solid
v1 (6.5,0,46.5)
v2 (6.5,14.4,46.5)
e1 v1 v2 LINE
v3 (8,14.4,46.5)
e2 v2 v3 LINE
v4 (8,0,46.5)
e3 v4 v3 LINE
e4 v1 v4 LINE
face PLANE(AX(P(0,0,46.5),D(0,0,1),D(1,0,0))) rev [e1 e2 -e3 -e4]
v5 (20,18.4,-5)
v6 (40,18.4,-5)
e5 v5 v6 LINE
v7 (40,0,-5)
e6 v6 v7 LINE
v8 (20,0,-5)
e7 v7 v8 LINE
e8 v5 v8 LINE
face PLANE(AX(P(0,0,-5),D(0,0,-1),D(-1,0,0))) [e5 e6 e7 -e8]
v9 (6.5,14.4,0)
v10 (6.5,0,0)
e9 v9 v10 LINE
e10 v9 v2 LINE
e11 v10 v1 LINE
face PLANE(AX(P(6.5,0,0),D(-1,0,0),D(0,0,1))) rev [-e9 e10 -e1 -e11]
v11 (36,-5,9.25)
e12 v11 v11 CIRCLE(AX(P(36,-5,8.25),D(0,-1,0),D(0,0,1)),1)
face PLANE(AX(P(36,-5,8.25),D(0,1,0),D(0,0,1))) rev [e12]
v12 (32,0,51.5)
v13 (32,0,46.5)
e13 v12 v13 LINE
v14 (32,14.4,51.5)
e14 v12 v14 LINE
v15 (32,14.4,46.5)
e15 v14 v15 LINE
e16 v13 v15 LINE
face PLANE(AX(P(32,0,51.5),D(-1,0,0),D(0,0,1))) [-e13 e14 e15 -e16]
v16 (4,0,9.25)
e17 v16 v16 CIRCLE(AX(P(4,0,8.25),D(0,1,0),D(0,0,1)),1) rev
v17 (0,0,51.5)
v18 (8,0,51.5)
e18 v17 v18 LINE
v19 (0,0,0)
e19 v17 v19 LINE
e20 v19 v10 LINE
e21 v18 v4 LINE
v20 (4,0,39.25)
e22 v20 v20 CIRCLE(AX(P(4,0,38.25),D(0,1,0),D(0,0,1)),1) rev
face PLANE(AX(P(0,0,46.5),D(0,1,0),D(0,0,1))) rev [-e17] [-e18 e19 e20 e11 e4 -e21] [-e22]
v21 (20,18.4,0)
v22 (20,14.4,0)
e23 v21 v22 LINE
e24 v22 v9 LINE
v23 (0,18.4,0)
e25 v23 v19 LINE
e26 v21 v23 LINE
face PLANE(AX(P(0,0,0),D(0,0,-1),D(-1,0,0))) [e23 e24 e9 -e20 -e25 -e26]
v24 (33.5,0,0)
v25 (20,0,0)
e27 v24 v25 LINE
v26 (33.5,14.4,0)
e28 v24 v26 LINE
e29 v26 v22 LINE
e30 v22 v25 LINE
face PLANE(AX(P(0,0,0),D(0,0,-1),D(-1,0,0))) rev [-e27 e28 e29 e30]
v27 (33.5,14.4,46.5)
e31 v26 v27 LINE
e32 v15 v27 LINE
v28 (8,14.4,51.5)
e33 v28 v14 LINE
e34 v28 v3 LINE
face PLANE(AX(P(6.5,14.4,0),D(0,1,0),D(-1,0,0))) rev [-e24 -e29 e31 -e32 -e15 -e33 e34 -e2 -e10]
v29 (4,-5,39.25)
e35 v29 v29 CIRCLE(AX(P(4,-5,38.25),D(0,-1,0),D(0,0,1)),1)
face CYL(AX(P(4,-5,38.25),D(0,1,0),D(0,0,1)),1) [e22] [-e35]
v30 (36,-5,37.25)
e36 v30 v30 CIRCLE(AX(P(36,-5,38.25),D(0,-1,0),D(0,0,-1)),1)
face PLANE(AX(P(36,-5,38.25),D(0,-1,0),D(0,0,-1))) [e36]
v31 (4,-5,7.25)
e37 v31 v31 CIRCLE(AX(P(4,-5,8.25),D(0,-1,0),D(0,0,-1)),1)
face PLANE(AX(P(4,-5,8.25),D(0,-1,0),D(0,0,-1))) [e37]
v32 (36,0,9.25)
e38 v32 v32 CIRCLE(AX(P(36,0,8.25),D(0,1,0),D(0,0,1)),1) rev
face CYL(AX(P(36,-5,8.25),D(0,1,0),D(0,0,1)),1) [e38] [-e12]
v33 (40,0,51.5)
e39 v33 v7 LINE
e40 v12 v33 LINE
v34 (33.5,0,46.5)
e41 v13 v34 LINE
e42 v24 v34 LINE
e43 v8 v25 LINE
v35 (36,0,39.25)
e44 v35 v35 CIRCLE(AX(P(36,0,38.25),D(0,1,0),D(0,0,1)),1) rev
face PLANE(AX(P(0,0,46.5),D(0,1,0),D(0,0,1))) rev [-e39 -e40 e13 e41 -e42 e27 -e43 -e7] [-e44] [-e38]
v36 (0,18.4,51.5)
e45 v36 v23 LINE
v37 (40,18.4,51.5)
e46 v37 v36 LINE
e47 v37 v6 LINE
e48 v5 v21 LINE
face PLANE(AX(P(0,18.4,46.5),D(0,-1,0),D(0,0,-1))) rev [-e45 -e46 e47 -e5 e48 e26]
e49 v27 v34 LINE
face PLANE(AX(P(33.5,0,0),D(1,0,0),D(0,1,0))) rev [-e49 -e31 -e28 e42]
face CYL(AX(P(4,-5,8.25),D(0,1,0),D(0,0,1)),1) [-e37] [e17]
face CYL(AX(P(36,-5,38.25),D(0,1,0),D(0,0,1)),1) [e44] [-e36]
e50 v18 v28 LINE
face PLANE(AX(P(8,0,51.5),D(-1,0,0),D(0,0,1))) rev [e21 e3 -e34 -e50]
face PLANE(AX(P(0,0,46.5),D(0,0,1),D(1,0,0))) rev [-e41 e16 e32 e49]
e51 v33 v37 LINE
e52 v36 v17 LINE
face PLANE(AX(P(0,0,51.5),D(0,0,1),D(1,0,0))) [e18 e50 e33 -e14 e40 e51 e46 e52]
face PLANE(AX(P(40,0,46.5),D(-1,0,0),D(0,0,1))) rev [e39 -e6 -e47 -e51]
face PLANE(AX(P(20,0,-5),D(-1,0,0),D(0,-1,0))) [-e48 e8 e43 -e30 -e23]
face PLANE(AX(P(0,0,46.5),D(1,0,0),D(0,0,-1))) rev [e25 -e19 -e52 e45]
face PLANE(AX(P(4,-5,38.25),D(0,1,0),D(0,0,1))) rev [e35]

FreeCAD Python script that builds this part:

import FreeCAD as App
import Part
import Sketcher

doc = App.newDocument("Part")
body = doc.addObject("PartDesign::Body", "Body")

# Sketch on XY plane
sketch1 = body.newObject("Sketcher::SketchObject", "Sketch")
sketch1.AttachmentSupport = (doc.getObject("XY_Plane"), [""])
sketch1.MapMode = "FlatFace"
sketch1.addGeometry(Part.LineSegment(App.Vector(0, 18, 0), App.Vector(0, 0, 0)), False)
sketch1.addGeometry(Part.LineSegment(App.Vector(0, 0, 0), App.Vector(40, 0, 0)), False)
sketch1.addGeometry(Part.LineSegment(App.Vector(40, 0, 0), App.Vector(40, 18, 0)), False)
sketch1.addGeometry(Part.LineSegment(App.Vector(40, 18, 0), App.Vector(0, 18, 0)), False)
sketch1.addConstraint(Sketcher.Constraint("Coincident", 0, 2, 1, 1))
sketch1.addConstraint(Sketcher.Constraint("Coincident", 1, 2, 2, 1))
sketch1.addConstraint(Sketcher.Constraint("Coincident", 2, 2, 3, 1))
sketch1.addConstraint(Sketcher.Constraint("Coincident", 3, 2, 0, 1))
sketch1.addConstraint(Sketcher.Constraint("Vertical", 0))
sketch1.addConstraint(Sketcher.Constraint("Horizontal", 1))
sketch1.addConstraint(Sketcher.Constraint("Vertical", 2))
sketch1.addConstraint(Sketcher.Constraint("Horizontal", 3))
sketch1.addConstraint(Sketcher.Constraint("Coincident", 0, 2, -1, 1))
sketch1.addConstraint(Sketcher.Constraint("DistanceX", 1, 1, 1, 2, 40.0))
sketch1.addConstraint(Sketcher.Constraint("DistanceY", 0, 2, 0, 1, 18.4))
pad1 = body.newObject("PartDesign::Pad", "Pad")
pad1.Profile = sketch1
pad1.Length = 46.5

# Sketch on XY plane
sketch2 = body.newObject("Sketcher::SketchObject", "Sketch001")
sketch2.AttachmentSupport = (doc.getObject("XY_Plane"), [""])
sketch2.MapMode = "FlatFace"
sketch2.AttachmentOffset = App.Placement(App.Vector(0, 0, 46.5), App.Rotation())
sketch2.addGeometry(Part.LineSegment(App.Vector(6, 14, 0), App.Vector(6, 0, 0)), False)
sketch2.addGeometry(Part.LineSegment(App.Vector(6, 0, 0), App.Vector(34, 0, 0)), False)
sketch2.addGeometry(Part.LineSegment(App.Vector(34, 0, 0), App.Vector(34, 14, 0)), False)
sketch2.addGeometry(Part.LineSegment(App.Vector(34, 14, 0), App.Vector(6, 14, 0)), False)
sketch2.addConstraint(Sketcher.Constraint("Coincident", 0, 2, 1, 1))
sketch2.addConstraint(Sketcher.Constraint("Coincident", 1, 2, 2, 1))
sketch2.addConstraint(Sketcher.Constraint("Coincident", 2, 2, 3, 1))
sketch2.addConstraint(Sketcher.Constraint("Coincident", 3, 2, 0, 1))
sketch2.addConstraint(Sketcher.Constraint("Vertical", 0))
sketch2.addConstraint(Sketcher.Constraint("Horizontal", 1))
sketch2.addConstraint(Sketcher.Constraint("Vertical", 2))
sketch2.addConstraint(Sketcher.Constraint("Horizontal", 3))
sketch2.addConstraint(Sketcher.Constraint("PointOnObject", 0, 2, -1))
sketch2.addConstraint(Sketcher.Constraint("DistanceX", 1, 1, 1, 2, 27.0))
sketch2.addConstraint(Sketcher.Constraint("DistanceY", 0, 2, 0, 1, 14.4))
sketch2.addConstraint(Sketcher.Constraint("DistanceX", -1, 1, 0, 2, 6.5))
pocket1 = body.newObject("PartDesign::Pocket", "Pocket")
pocket1.Profile = sketch2
pocket1.Type = "ThroughAll"
pocket1.Midplane = True

# Sketch on XY plane
sketch3 = body.newObject("Sketcher::SketchObject", "Sketch002")
sketch3.AttachmentSupport = (doc.getObject("XY_Plane"), [""])
sketch3.MapMode = "FlatFace"
sketch3.AttachmentOffset = App.Placement(App.Vector(0, 0, 46.5), App.Rotation())
sketch3.addGeometry(Part.LineSegment(App.Vector(0, 18, 0), App.Vector(0, 0, 0)), False)
sketch3.addGeometry(Part.LineSegment(App.Vector(0, 0, 0), App.Vector(8, 0, 0)), False)
sketch3.addGeometry(Part.LineSegment(App.Vector(8, 0, 0), App.Vector(8, 14, 0)), False)
sketch3.addGeometry(Part.LineSegment(App.Vector(8, 14, 0), App.Vector(32, 14, 0)), False)
sketch3.addGeometry(Part.LineSegment(App.Vector(32, 14, 0), App.Vector(32, 0, 0)), False)
sketch3.addGeometry(Part.LineSegment(App.Vector(32, 0, 0), App.Vector(40, 0, 0)), False)
sketch3.addGeometry(Part.LineSegment(App.Vector(40, 0, 0), App.Vector(40, 18, 0)), False)
sketch3.addGeometry(Part.LineSegment(App.Vector(40, 18, 0), App.Vector(0, 18, 0)), False)
sketch3.addConstraint(Sketcher.Constraint("Coincident", 0, 2, 1, 1))
sketch3.addConstraint(Sketcher.Constraint("Coincident", 1, 2, 2, 1))
sketch3.addConstraint(Sketcher.Constraint("Coincident", 2, 2, 3, 1))
sketch3.addConstraint(Sketcher.Constraint("Coincident", 3, 2, 4, 1))
sketch3.addConstraint(Sketcher.Constraint("Coincident", 4, 2, 5, 1))
sketch3.addConstraint(Sketcher.Constraint("Coincident", 5, 2, 6, 1))
sketch3.addConstraint(Sketcher.Constraint("Coincident", 6, 2, 7, 1))
sketch3.addConstraint(Sketcher.Constraint("Coincident", 7, 2, 0, 1))
sketch3.addConstraint(Sketcher.Constraint("Vertical", 0))
sketch3.addConstraint(Sketcher.Constraint("Horizontal", 1))
sketch3.addConstraint(Sketcher.Constraint("Vertical", 2))
sketch3.addConstraint(Sketcher.Constraint("Horizontal", 3))
sketch3.addConstraint(Sketcher.Constraint("Vertical", 4))
sketch3.addConstraint(Sketcher.Constraint("Horizontal", 5))
sketch3.addConstraint(Sketcher.Constraint("Vertical", 6))
sketch3.addConstraint(Sketcher.Constraint("Horizontal", 7))
sketch3.addConstraint(Sketcher.Constraint("Coincident", 0, 2, -1, 1))
sketch3.addConstraint(Sketcher.Constraint("PointOnObject", 4, 2, -1))
sketch3.addConstraint(Sketcher.Constraint("Equal", 1, 5))
sketch3.addConstraint(Sketcher.Constraint("DistanceX", 1, 1, 1, 2, 8.0))
sketch3.addConstraint(Sketcher.Constraint("DistanceX", 3, 1, 3, 2, 24.0))
sketch3.addConstraint(Sketcher.Constraint("DistanceY", 0, 2, 0, 1, 18.4))
sketch3.addConstraint(Sketcher.Constraint("DistanceY", 2, 1, 2, 2, 14.4))
pad2 = body.newObject("PartDesign::Pad", "Pad001")
pad2.Profile = sketch3
pad2.Length = 5

# Sketch on XY plane
sketch4 = body.newObject("Sketcher::SketchObject", "Sketch003")
sketch4.AttachmentSupport = (doc.getObject("XY_Plane"), [""])
sketch4.MapMode = "FlatFace"
sketch4.addGeometry(Part.LineSegment(App.Vector(20, 18, 0), App.Vector(40, 18, 0)), False)
sketch4.addGeometry(Part.LineSegment(App.Vector(40, 18, 0), App.Vector(40, 0, 0)), False)
sketch4.addGeometry(Part.LineSegment(App.Vector(40, 0, 0), App.Vector(20, 0, 0)), False)
sketch4.addGeometry(Part.LineSegment(App.Vector(20, 0, 0), App.Vector(20, 18, 0)), False)
sketch4.addConstraint(Sketcher.Constraint("Coincident", 0, 2, 1, 1))
sketch4.addConstraint(Sketcher.Constraint("Coincident", 1, 2, 2, 1))
sketch4.addConstraint(Sketcher.Constraint("Coincident", 2, 2, 3, 1))
sketch4.addConstraint(Sketcher.Constraint("Coincident", 3, 2, 0, 1))
sketch4.addConstraint(Sketcher.Constraint("Horizontal", 0))
sketch4.addConstraint(Sketcher.Constraint("Vertical", 1))
sketch4.addConstraint(Sketcher.Constraint("Horizontal", 2))
sketch4.addConstraint(Sketcher.Constraint("Vertical", 3))
sketch4.addConstraint(Sketcher.Constraint("PointOnObject", 1, 2, -1))
sketch4.addConstraint(Sketcher.Constraint("DistanceX", 0, 1, 0, 2, 20.0))
sketch4.addConstraint(Sketcher.Constraint("DistanceY", 1, 2, 1, 1, 18.4))
sketch4.addConstraint(Sketcher.Constraint("DistanceX", -1, 1, 0, 2, 40.0))
pad3 = body.newObject("PartDesign::Pad", "Pad002")
pad3.Profile = sketch4
pad3.Length = 5
pad3.Reversed = True

# Sketch on XZ plane
sketch5 = body.newObject("Sketcher::SketchObject", "Sketch004")
sketch5.AttachmentSupport = (doc.getObject("XZ_Plane"), [""])
sketch5.MapMode = "FlatFace"
sketch5.addGeometry(Part.Circle(App.Vector(36, 38.2, 0), App.Vector(0, 0, 1), 1), False)
sketch5.addGeometry(Part.Circle(App.Vector(4, 38.2, 0), App.Vector(0, 0, 1), 1), False)
sketch5.addGeometry(Part.Circle(App.Vector(4, 8.2, 0), App.Vector(0, 0, 1), 1), False)
sketch5.addGeometry(Part.Circle(App.Vector(36, 8.2, 0), App.Vector(0, 0, 1), 1), False)
sketch5.addConstraint(Sketcher.Constraint("Equal", 0, 1))
sketch5.addConstraint(Sketcher.Constraint("Equal", 1, 2))
sketch5.addConstraint(Sketcher.Constraint("Equal", 2, 3))
sketch5.addConstraint(Sketcher.Constraint("Horizontal", 0, 3, 1, 3))
sketch5.addConstraint(Sketcher.Constraint("Horizontal", 2, 3, 3, 3))
sketch5.addConstraint(Sketcher.Constraint("Vertical", 1, 3, 2, 3))
sketch5.addConstraint(Sketcher.Constraint("Vertical", 0, 3, 3, 3))
sketch5.addConstraint(Sketcher.Constraint("Diameter", 0, 2.0))
sketch5.addConstraint(Sketcher.Constraint("DistanceX", -1, 1, 0, 3, 36.0))
sketch5.addConstraint(Sketcher.Constraint("DistanceX", -1, 1, 1, 3, 4.0))
sketch5.addConstraint(Sketcher.Constraint("DistanceY", 2, 3, 1, 3, 30.0))
sketch5.addConstraint(Sketcher.Constraint("DistanceY", -1, 1, 0, 3, 38.25))
pad4 = body.newObject("PartDesign::Pad", "Pad003")
pad4.Profile = sketch5
pad4.Length = 5

doc.recompute()
